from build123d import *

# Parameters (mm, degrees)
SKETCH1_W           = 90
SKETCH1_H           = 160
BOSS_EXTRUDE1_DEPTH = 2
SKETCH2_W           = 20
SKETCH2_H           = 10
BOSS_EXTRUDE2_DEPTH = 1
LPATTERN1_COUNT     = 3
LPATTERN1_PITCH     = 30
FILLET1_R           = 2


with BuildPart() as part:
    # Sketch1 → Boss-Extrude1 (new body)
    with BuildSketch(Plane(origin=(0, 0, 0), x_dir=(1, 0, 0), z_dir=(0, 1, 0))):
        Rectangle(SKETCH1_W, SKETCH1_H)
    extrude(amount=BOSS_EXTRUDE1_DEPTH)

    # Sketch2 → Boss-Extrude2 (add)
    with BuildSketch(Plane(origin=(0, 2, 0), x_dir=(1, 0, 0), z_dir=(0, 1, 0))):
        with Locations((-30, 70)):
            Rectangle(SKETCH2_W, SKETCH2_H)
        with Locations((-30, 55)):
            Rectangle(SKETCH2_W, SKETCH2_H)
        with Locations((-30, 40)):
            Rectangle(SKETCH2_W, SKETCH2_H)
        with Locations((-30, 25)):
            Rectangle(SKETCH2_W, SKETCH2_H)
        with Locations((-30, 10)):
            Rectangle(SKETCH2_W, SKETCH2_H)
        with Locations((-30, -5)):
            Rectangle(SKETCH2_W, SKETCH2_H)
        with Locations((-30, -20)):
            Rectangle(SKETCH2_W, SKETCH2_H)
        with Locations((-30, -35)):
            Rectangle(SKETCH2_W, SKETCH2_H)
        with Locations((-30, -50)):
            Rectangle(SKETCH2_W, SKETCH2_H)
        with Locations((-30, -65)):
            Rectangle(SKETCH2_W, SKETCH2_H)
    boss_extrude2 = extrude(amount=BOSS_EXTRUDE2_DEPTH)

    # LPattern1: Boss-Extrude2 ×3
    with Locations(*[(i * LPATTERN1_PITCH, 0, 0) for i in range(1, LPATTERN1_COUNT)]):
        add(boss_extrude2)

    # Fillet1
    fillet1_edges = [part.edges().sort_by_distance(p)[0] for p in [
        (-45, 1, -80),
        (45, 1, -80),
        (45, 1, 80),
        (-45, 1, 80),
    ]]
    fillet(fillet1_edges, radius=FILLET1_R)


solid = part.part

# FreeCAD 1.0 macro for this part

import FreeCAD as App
import Part
import Sketcher

V = App.Vector


def edges_at(feature, points):
    """Names of the edges that pass closest to the given points."""
    edges = feature.Shape.Edges
    near = lambda p: min(range(len(edges)), key=lambda i: edges[i].distToShape(Part.Vertex(*p))[0])
    return sorted({f"Edge{near(p) + 1}" for p in points})


def add_polygon(sketch, points):
    """Adds a closed chain of lines whose ends are joined by coincident constraints."""
    first, n = sketch.GeometryCount, len(points)
    for a, b in zip(points, points[1:] + points[:1]):
        sketch.addGeometry(Part.LineSegment(App.Vector(*a, 0), App.Vector(*b, 0)), False)
    for i in range(n):
        sketch.addConstraint(Sketcher.Constraint("Coincident", first + i, 2, first + (i + 1) % n, 1))

doc = App.newDocument("Part")
body = doc.addObject("PartDesign::Body", "Body")

sketch1 = body.newObject("Sketcher::SketchObject", "Sketch")
sketch1.AttachmentSupport = (doc.getObject("XZ_Plane"), [""])
sketch1.MapMode = "FlatFace"
add_polygon(sketch1, [(-45, -80), (-45, 80), (45, 80), (45, -80)])
sketch1.addConstraint(Sketcher.Constraint("Vertical", 0))
sketch1.addConstraint(Sketcher.Constraint("Horizontal", 1))
sketch1.addConstraint(Sketcher.Constraint("Vertical", 2))
sketch1.addConstraint(Sketcher.Constraint("Horizontal", 3))
sketch1.addConstraint(Sketcher.Constraint("Symmetric", 0, 2, 2, 2, -1, 1))
sketch1.addConstraint(Sketcher.Constraint("DistanceX", 1, 1, 1, 2, 90.0))
sketch1.addConstraint(Sketcher.Constraint("DistanceY", 0, 1, 0, 2, 160.0))
pad1 = body.newObject("PartDesign::Pad", "Pad")
pad1.Profile = sketch1
pad1.Length = 2
pad1.Reversed = True

sketch2 = body.newObject("Sketcher::SketchObject", "Sketch001")
sketch2.AttachmentSupport = (doc.getObject("XZ_Plane"), [""])
sketch2.MapMode = "FlatFace"
sketch2.AttachmentOffset = App.Placement(V(0, 0, -2), App.Rotation())
add_polygon(sketch2, [(-40, -75), (-40, -65), (-20, -65), (-20, -75)])
add_polygon(sketch2, [(-40, -60), (-40, -50), (-20, -50), (-20, -60)])
add_polygon(sketch2, [(-40, -45), (-40, -35), (-20, -35), (-20, -45)])
add_polygon(sketch2, [(-40, -30), (-40, -20), (-20, -20), (-20, -30)])
add_polygon(sketch2, [(-40, -15), (-40, -5), (-20, -5), (-20, -15)])
add_polygon(sketch2, [(-40, 0), (-40, 10), (-20, 10), (-20, 0)])
add_polygon(sketch2, [(-40, 15), (-40, 25), (-20, 25), (-20, 15)])
add_polygon(sketch2, [(-40, 30), (-40, 40), (-20, 40), (-20, 30)])
add_polygon(sketch2, [(-40, 45), (-40, 55), (-20, 55), (-20, 45)])
add_polygon(sketch2, [(-40, 60), (-40, 70), (-20, 70), (-20, 60)])
sketch2.addConstraint(Sketcher.Constraint("Vertical", 0))
sketch2.addConstraint(Sketcher.Constraint("Horizontal", 1))
sketch2.addConstraint(Sketcher.Constraint("Vertical", 2))
sketch2.addConstraint(Sketcher.Constraint("Horizontal", 3))
sketch2.addConstraint(Sketcher.Constraint("Vertical", 4))
sketch2.addConstraint(Sketcher.Constraint("Horizontal", 5))
sketch2.addConstraint(Sketcher.Constraint("Vertical", 6))
sketch2.addConstraint(Sketcher.Constraint("Horizontal", 7))
sketch2.addConstraint(Sketcher.Constraint("Vertical", 8))
sketch2.addConstraint(Sketcher.Constraint("Horizontal", 9))
sketch2.addConstraint(Sketcher.Constraint("Vertical", 10))
sketch2.addConstraint(Sketcher.Constraint("Horizontal", 11))
sketch2.addConstraint(Sketcher.Constraint("Vertical", 12))
sketch2.addConstraint(Sketcher.Constraint("Horizontal", 13))
sketch2.addConstraint(Sketcher.Constraint("Vertical", 14))
sketch2.addConstraint(Sketcher.Constraint("Horizontal", 15))
sketch2.addConstraint(Sketcher.Constraint("Vertical", 16))
sketch2.addConstraint(Sketcher.Constraint("Horizontal", 17))
sketch2.addConstraint(Sketcher.Constraint("Vertical", 18))
sketch2.addConstraint(Sketcher.Constraint("Horizontal", 19))
sketch2.addConstraint(Sketcher.Constraint("Vertical", 20))
sketch2.addConstraint(Sketcher.Constraint("Horizontal", 21))
sketch2.addConstraint(Sketcher.Constraint("Vertical", 22))
sketch2.addConstraint(Sketcher.Constraint("Horizontal", 23))
sketch2.addConstraint(Sketcher.Constraint("Vertical", 24))
sketch2.addConstraint(Sketcher.Constraint("Horizontal", 25))
sketch2.addConstraint(Sketcher.Constraint("Vertical", 26))
sketch2.addConstraint(Sketcher.Constraint("Horizontal", 27))
sketch2.addConstraint(Sketcher.Constraint("Vertical", 28))
sketch2.addConstraint(Sketcher.Constraint("Horizontal", 29))
sketch2.addConstraint(Sketcher.Constraint("Vertical", 30))
sketch2.addConstraint(Sketcher.Constraint("Horizontal", 31))
sketch2.addConstraint(Sketcher.Constraint("Vertical", 32))
sketch2.addConstraint(Sketcher.Constraint("Horizontal", 33))
sketch2.addConstraint(Sketcher.Constraint("Vertical", 34))
sketch2.addConstraint(Sketcher.Constraint("Horizontal", 35))
sketch2.addConstraint(Sketcher.Constraint("Vertical", 36))
sketch2.addConstraint(Sketcher.Constraint("Horizontal", 37))
sketch2.addConstraint(Sketcher.Constraint("Vertical", 38))
sketch2.addConstraint(Sketcher.Constraint("Horizontal", 39))
sketch2.addConstraint(Sketcher.Constraint("Symmetric", 18, 2, 26, 2, -1))
sketch2.addConstraint(Sketcher.Constraint("Symmetric", 14, 2, 30, 2, -1))
sketch2.addConstraint(Sketcher.Constraint("Symmetric", 10, 2, 34, 2, -1))
sketch2.addConstraint(Sketcher.Constraint("Symmetric", 6, 2, 38, 2, -1))
sketch2.addConstraint(Sketcher.Constraint("PointOnObject", 22, 2, -1))
sketch2.addConstraint(Sketcher.Constraint("Vertical", 3, 2, 4, 2))
sketch2.addConstraint(Sketcher.Constraint("Vertical", 2, 2, 5, 2))
sketch2.addConstraint(Sketcher.Constraint("Vertical", 7, 2, 8, 2))
sketch2.addConstraint(Sketcher.Constraint("Vertical", 6, 2, 9, 2))
sketch2.addConstraint(Sketcher.Constraint("Vertical", 11, 2, 12, 2))
sketch2.addConstraint(Sketcher.Constraint("Vertical", 10, 2, 13, 2))
sketch2.addConstraint(Sketcher.Constraint("Vertical", 15, 2, 16, 2))
sketch2.addConstraint(Sketcher.Constraint("Vertical", 14, 2, 17, 2))
sketch2.addConstraint(Sketcher.Constraint("Vertical", 19, 2, 20, 2))
sketch2.addConstraint(Sketcher.Constraint("Vertical", 18, 2, 21, 2))
sketch2.addConstraint(Sketcher.Constraint("Vertical", 23, 2, 24, 2))
sketch2.addConstraint(Sketcher.Constraint("Vertical", 27, 2, 28, 2))
sketch2.addConstraint(Sketcher.Constraint("Vertical", 31, 2, 32, 2))
sketch2.addConstraint(Sketcher.Constraint("Vertical", 35, 2, 36, 2))
sketch2.addConstraint(Sketcher.Constraint("Equal", 2, 4))
sketch2.addConstraint(Sketcher.Constraint("Equal", 6, 8))
sketch2.addConstraint(Sketcher.Constraint("Equal", 10, 12))
sketch2.addConstraint(Sketcher.Constraint("Equal", 14, 16))
sketch2.addConstraint(Sketcher.Constraint("Equal", 18, 20))
sketch2.addConstraint(Sketcher.Constraint("Equal", 22, 24))
sketch2.addConstraint(Sketcher.Constraint("Equal", 26, 28))
sketch2.addConstraint(Sketcher.Constraint("Equal", 30, 32))
sketch2.addConstraint(Sketcher.Constraint("Equal", 34, 36))
sketch2.addConstraint(Sketcher.Constraint("DistanceX", 1, 1, 1, 2, 20.0))
sketch2.addConstraint(Sketcher.Constraint("DistanceY", 0, 1, 0, 2, 10.0))
sketch2.addConstraint(Sketcher.Constraint("DistanceX", 0, 2, -1, 1, 40.0))
sketch2.addConstraint(Sketcher.Constraint("DistanceY", 0, 2, -1, 1, 65.0))
sketch2.addConstraint(Sketcher.Constraint("DistanceY", 4, 2, -1, 1, 50.0))
sketch2.addConstraint(Sketcher.Constraint("DistanceY", 8, 2, -1, 1, 35.0))
sketch2.addConstraint(Sketcher.Constraint("DistanceY", 12, 2, -1, 1, 20.0))
sketch2.addConstraint(Sketcher.Constraint("DistanceY", 16, 2, -1, 1, 5.0))
pad2 = body.newObject("PartDesign::Pad", "Pad001")
pad2.Profile = sketch2
pad2.Length = 1
pad2.Reversed = True
doc.recompute()

linearpattern = body.newObject("PartDesign::LinearPattern", "LinearPattern")
linearpattern.Originals = [pad2]
linearpattern.Direction = (doc.getObject("X_Axis"), [""])
linearpattern.Mode = "offset"
linearpattern.Offset = 30
linearpattern.Occurrences = 3
body.Tip = linearpattern
doc.recompute()

fillet = body.newObject("PartDesign::Fillet", "Fillet")
fillet.Base = (linearpattern, edges_at(linearpattern, [
    (-45, 1, -80),
    (45, 1, -80),
    (45, 1, 80),
    (-45, 1, 80),
]))
fillet.Radius = 2

doc.recompute()
